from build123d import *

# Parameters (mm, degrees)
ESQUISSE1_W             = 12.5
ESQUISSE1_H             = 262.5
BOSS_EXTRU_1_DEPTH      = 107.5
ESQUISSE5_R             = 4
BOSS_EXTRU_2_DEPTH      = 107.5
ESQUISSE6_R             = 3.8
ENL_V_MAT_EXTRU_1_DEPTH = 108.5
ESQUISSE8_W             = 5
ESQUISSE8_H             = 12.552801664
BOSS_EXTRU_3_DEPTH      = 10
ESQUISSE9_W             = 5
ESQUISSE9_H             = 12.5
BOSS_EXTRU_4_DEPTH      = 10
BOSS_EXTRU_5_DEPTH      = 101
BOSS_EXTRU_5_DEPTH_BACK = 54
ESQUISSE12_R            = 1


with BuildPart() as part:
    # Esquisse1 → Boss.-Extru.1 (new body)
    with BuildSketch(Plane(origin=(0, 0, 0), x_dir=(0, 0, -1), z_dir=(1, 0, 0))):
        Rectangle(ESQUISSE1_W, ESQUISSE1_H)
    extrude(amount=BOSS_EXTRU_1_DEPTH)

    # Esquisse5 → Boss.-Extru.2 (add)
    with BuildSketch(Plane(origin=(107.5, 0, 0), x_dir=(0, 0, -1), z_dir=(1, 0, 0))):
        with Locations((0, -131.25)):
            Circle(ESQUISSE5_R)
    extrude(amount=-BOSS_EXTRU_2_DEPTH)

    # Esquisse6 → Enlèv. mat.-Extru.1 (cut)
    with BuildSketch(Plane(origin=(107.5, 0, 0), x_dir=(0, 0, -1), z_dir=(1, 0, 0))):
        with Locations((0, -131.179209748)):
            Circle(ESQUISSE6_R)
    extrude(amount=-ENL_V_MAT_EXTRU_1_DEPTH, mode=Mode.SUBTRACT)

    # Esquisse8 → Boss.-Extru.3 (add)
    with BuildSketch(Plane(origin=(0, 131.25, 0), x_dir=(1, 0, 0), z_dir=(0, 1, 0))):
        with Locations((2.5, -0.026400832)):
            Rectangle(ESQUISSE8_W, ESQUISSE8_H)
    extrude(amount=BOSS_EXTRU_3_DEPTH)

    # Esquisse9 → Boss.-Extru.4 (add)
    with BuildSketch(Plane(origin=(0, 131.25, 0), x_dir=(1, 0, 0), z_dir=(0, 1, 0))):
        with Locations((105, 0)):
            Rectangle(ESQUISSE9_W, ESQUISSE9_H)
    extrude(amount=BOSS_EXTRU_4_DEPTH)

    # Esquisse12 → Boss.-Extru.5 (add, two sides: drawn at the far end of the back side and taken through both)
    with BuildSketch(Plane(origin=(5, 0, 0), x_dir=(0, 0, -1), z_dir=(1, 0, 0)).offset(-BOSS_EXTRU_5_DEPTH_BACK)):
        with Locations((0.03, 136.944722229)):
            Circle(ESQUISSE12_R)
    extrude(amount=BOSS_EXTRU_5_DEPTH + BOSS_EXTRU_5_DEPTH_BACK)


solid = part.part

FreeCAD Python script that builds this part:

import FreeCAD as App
import Part
import Sketcher


def add_polygon(sketch, points):
    """Adds a closed chain of lines whose ends are joined by coincident constraints."""
    first, n = sketch.GeometryCount, len(points)
    for a, b in zip(points, points[1:] + points[:1]):
        sketch.addGeometry(Part.LineSegment(App.Vector(*a, 0), App.Vector(*b, 0)), False)
    for i in range(n):
        sketch.addConstraint(Sketcher.Constraint("Coincident", first + i, 2, first + (i + 1) % n, 1))

doc = App.newDocument("Part")
body = doc.addObject("PartDesign::Body", "Body")

sketch1 = body.newObject("Sketcher::SketchObject", "Sketch")
sketch1.AttachmentSupport = (doc.getObject("YZ_Plane"), [""])
sketch1.MapMode = "FlatFace"
add_polygon(sketch1, [(131.25, 6.25), (-131.25, 6.25), (-131.25, -6.25), (131.25, -6.25)])
sketch1.addConstraint([
    Sketcher.Constraint("Horizontal", 0),
    Sketcher.Constraint("Vertical", 1),
    Sketcher.Constraint("Horizontal", 2),
    Sketcher.Constraint("Vertical", 3),
    Sketcher.Constraint("Symmetric", 0, 2, 2, 2, -1, 1),
    Sketcher.Constraint("DistanceX", 0, 2, 0, 1, 262.5),
    Sketcher.Constraint("DistanceY", 1, 2, 1, 1, 12.5),
])
pad1 = body.newObject("PartDesign::Pad", "Pad")
pad1.Profile = sketch1
pad1.Length = 107.5

sketch2 = body.newObject("Sketcher::SketchObject", "Sketch001")
sketch2.AttachmentSupport = (doc.getObject("YZ_Plane"), [""])
sketch2.MapMode = "FlatFace"
sketch2.AttachmentOffset = App.Placement(App.Vector(0, 0, 107.5), App.Rotation())
sketch2.addGeometry(Part.Circle(App.Vector(-131.25, 0, 0), App.Vector(0, 0, 1), 4), False)
sketch2.addConstraint([
    Sketcher.Constraint("PointOnObject", 0, 3, -1),
    Sketcher.Constraint("Diameter", 0, 8.0),
    Sketcher.Constraint("DistanceX", 0, 3, -1, 1, 131.25),
])
pad2 = body.newObject("PartDesign::Pad", "Pad001")
pad2.Profile = sketch2
pad2.Length = 107.5
pad2.Reversed = True

sketch3 = body.newObject("Sketcher::SketchObject", "Sketch002")
sketch3.AttachmentSupport = (doc.getObject("YZ_Plane"), [""])
sketch3.MapMode = "FlatFace"
sketch3.AttachmentOffset = App.Placement(App.Vector(0, 0, 107.5), App.Rotation())
sketch3.addGeometry(Part.Circle(App.Vector(-131.17921, 0, 0), App.Vector(0, 0, 1), 3.8), False)
sketch3.addConstraint([
    Sketcher.Constraint("PointOnObject", 0, 3, -1),
    Sketcher.Constraint("Diameter", 0, 7.6),
    Sketcher.Constraint("DistanceX", 0, 3, -1, 1, 131.17921),
])
pocket1 = body.newObject("PartDesign::Pocket", "Pocket")
pocket1.Profile = sketch3
pocket1.Length = 108.5

sketch4 = body.newObject("Sketcher::SketchObject", "Sketch003")
sketch4.AttachmentSupport = (doc.getObject("XZ_Plane"), [""])
sketch4.MapMode = "FlatFace"
sketch4.AttachmentOffset = App.Placement(App.Vector(0, 0, -131.25), App.Rotation())
add_polygon(sketch4, [(0, -6.25), (0, 6.302802), (5, 6.302802), (5, -6.25)])
sketch4.addConstraint([
    Sketcher.Constraint("Vertical", 0),
    Sketcher.Constraint("Horizontal", 1),
    Sketcher.Constraint("Vertical", 2),
    Sketcher.Constraint("Horizontal", 3),
    Sketcher.Constraint("PointOnObject", 0, 2, -2),
    Sketcher.Constraint("DistanceX", 1, 1, 1, 2, 5.0),
    Sketcher.Constraint("DistanceY", 2, 2, -1, 1, 6.25),
    Sketcher.Constraint("DistanceY", 0, 1, 0, 2, 12.552802),
])
pad3 = body.newObject("PartDesign::Pad", "Pad002")
pad3.Profile = sketch4
pad3.Length = 10
pad3.Reversed = True

sketch5 = body.newObject("Sketcher::SketchObject", "Sketch004")
sketch5.AttachmentSupport = (doc.getObject("XZ_Plane"), [""])
sketch5.MapMode = "FlatFace"
sketch5.AttachmentOffset = App.Placement(App.Vector(0, 0, -131.25), App.Rotation())
add_polygon(sketch5, [(102.5, -6.25), (102.5, 6.25), (107.5, 6.25), (107.5, -6.25)])
sketch5.addConstraint([
    Sketcher.Constraint("Vertical", 0),
    Sketcher.Constraint("Horizontal", 1),
    Sketcher.Constraint("Vertical", 2),
    Sketcher.Constraint("Horizontal", 3),
    Sketcher.Constraint("DistanceX", 1, 1, 1, 2, 5.0),
    Sketcher.Constraint("DistanceY", 0, 1, 0, 2, 12.5),
    Sketcher.Constraint("DistanceX", -1, 1, 0, 2, 102.5),
    Sketcher.Constraint("DistanceY", -1, 1, 0, 2, 6.25),
])
pad4 = body.newObject("PartDesign::Pad", "Pad003")
pad4.Profile = sketch5
pad4.Length = 10
pad4.Reversed = True

sketch6 = body.newObject("Sketcher::SketchObject", "Sketch005")
sketch6.AttachmentSupport = (doc.getObject("YZ_Plane"), [""])
sketch6.MapMode = "FlatFace"
sketch6.AttachmentOffset = App.Placement(App.Vector(0, 0, 5), App.Rotation())
sketch6.addGeometry(Part.Circle(App.Vector(136.944722, -0.03, 0), App.Vector(0, 0, 1), 1), False)
sketch6.addConstraint([
    Sketcher.Constraint("Diameter", 0, 2.0),
    Sketcher.Constraint("DistanceY", 0, 3, -1, 1, 0.03),
    Sketcher.Constraint("DistanceX", -1, 1, 0, 3, 136.944722),
])
pad5 = body.newObject("PartDesign::Pad", "Pad004")
pad5.Profile = sketch6
pad5.Type = "TwoLengths"
pad5.Length = 101
pad5.Length2 = 54

doc.recompute()
